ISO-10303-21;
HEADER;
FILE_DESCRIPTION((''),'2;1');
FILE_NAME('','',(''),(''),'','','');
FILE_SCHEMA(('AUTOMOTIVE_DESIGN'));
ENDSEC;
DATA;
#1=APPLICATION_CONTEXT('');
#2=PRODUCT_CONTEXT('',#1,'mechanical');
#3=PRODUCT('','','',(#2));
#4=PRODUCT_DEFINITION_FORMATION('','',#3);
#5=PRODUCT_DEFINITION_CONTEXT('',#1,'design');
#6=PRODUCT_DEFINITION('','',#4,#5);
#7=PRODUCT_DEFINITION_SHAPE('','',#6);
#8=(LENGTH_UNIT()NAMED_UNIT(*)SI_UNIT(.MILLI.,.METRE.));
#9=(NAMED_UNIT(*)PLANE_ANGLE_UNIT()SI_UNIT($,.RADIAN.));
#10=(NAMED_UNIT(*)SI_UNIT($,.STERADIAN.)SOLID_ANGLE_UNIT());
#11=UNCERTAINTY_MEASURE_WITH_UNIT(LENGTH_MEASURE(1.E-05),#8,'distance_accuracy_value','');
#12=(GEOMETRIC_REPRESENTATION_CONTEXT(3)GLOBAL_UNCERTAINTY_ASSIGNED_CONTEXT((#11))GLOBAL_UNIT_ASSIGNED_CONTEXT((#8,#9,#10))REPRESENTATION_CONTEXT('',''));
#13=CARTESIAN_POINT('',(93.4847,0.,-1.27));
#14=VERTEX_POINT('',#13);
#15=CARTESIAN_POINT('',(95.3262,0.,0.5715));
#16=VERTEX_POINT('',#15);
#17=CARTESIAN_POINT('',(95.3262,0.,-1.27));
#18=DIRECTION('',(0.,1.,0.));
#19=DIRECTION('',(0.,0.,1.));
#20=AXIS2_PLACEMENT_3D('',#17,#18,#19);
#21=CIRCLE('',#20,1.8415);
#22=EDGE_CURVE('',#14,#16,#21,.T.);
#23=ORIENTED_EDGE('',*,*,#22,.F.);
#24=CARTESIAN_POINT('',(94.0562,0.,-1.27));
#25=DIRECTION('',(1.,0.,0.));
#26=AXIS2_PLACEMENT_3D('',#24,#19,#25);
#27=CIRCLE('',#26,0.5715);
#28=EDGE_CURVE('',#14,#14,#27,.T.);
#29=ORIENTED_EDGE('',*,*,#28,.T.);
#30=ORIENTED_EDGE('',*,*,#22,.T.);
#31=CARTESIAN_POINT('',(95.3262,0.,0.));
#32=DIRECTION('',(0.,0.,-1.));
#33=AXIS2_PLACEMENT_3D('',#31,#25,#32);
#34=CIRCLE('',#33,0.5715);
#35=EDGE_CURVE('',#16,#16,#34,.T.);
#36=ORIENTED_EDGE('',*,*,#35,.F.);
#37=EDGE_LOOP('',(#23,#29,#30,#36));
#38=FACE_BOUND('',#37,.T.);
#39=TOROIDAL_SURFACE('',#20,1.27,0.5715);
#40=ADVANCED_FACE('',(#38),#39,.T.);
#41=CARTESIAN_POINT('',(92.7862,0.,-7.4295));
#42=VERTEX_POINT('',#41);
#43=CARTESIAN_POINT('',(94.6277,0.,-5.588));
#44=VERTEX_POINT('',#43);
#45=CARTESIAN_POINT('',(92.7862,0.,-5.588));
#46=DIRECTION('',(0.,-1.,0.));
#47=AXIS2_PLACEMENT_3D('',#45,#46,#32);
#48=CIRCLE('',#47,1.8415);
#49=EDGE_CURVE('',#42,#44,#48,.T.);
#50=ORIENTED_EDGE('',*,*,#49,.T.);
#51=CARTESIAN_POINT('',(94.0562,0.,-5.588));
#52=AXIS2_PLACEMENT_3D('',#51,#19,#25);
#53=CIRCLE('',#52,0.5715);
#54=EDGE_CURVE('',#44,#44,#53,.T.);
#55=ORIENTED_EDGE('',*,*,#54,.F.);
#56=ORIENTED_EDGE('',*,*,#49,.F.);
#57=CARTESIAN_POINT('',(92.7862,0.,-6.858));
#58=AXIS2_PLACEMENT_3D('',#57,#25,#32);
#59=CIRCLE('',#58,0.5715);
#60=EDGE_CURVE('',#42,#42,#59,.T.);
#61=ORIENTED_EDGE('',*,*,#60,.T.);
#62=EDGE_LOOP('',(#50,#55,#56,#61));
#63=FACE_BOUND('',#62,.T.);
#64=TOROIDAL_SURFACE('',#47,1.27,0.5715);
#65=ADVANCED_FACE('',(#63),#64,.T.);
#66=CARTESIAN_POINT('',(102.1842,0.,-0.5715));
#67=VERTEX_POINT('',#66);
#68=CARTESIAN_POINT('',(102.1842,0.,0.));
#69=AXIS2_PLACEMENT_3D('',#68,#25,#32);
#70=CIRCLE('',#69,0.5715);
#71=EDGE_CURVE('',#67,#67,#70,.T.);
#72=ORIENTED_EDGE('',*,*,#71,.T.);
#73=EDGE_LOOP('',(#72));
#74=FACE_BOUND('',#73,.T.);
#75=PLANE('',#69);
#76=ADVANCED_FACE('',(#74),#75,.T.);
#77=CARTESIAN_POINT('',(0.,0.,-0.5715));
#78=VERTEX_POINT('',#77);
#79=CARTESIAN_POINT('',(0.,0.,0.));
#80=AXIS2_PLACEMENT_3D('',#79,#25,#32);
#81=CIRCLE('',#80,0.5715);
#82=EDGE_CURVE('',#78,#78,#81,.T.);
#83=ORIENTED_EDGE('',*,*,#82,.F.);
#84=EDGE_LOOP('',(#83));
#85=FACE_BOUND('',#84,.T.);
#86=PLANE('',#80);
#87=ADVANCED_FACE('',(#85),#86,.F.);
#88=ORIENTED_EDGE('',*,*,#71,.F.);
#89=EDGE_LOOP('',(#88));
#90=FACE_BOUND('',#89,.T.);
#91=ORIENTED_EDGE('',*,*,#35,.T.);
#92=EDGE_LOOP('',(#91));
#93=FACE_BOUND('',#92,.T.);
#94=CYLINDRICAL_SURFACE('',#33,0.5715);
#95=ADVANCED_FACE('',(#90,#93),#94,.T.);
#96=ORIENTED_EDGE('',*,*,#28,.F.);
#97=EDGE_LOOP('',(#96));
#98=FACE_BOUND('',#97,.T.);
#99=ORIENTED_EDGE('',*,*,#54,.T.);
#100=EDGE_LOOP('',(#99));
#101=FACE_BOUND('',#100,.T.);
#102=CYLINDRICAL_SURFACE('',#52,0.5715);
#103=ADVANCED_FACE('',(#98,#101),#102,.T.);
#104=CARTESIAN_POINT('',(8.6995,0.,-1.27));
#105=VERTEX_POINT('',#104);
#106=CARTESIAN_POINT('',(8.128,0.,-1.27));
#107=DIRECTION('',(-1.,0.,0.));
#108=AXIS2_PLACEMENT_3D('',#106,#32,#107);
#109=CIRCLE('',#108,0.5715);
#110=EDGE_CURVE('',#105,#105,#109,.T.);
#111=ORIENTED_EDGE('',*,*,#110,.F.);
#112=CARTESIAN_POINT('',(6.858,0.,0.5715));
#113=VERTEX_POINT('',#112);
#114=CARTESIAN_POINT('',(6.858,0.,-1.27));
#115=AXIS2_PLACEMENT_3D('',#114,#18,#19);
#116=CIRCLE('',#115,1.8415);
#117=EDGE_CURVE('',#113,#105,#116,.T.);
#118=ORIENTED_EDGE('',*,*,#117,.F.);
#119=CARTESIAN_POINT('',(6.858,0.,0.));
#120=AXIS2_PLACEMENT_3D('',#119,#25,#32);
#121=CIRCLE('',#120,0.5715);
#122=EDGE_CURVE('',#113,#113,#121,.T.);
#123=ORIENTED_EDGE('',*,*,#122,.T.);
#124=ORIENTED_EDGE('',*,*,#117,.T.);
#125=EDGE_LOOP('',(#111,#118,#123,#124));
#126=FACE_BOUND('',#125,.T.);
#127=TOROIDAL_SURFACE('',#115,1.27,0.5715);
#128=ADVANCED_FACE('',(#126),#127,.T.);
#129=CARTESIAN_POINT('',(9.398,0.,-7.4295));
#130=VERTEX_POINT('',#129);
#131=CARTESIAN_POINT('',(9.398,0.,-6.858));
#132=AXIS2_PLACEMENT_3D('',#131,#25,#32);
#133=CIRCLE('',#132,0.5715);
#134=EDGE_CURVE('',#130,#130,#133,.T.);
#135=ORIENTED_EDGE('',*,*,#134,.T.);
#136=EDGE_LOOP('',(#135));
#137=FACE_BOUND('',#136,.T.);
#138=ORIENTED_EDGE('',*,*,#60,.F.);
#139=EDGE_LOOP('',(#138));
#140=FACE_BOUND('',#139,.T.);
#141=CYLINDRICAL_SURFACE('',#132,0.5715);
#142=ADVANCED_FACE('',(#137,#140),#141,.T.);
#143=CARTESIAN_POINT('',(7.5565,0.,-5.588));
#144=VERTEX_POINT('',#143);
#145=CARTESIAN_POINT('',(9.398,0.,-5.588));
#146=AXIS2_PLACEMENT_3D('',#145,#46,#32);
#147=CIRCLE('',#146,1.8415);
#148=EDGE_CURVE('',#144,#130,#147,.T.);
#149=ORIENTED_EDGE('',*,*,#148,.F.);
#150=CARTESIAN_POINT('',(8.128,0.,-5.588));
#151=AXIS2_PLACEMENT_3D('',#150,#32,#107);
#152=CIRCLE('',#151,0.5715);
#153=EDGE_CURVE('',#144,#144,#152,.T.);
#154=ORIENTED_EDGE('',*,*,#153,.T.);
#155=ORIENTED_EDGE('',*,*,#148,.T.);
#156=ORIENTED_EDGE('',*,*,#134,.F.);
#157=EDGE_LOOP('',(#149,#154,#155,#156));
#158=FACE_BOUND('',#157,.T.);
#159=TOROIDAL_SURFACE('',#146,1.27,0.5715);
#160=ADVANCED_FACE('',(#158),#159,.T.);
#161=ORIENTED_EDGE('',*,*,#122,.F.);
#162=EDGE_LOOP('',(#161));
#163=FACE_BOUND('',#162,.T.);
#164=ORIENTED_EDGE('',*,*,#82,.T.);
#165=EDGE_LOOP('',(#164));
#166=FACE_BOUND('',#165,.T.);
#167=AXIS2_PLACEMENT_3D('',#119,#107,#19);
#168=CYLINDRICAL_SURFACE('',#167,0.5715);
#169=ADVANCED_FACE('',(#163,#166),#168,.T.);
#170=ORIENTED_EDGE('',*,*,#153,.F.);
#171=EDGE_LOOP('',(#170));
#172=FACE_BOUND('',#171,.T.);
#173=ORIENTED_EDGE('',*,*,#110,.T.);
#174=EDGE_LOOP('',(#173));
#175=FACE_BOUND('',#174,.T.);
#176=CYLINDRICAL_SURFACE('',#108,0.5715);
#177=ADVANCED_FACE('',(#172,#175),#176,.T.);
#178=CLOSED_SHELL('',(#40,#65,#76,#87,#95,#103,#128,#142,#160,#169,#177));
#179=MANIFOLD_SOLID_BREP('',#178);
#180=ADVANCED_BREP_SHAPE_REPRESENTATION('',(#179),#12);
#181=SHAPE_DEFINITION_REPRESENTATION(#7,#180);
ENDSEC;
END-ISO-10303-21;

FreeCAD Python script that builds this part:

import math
import FreeCAD as App
import Part
import Sketcher
Q = App.Units.Quantity

doc = App.newDocument("Part")
params = doc.addObject("Spreadsheet::Sheet", "Params")
for row, (alias, value) in enumerate([
    ("sketch1_diameter", "0.045 in"),
    ("sketch2_radius", "0.05 in"),
    ("sketch2_width", "0.27 in"),
    ("sketch2_height", "0.17 in"),
    ("sketch2_width2", "3.283 in"),
], start=1):
    params.set(f"A{row}", alias)
    params.set(f"B{row}", "=" + value)
    params.setAlias(f"B{row}", alias)

body = doc.addObject("PartDesign::Body", "Body")

# Sketch on YZ plane
sketch1 = doc.addObject("Sketcher::SketchObject", "Sketch")
body.addObject(sketch1)
sketch1.AttachmentSupport = (doc.YZ_Plane, [""])
sketch1.MapMode = "FlatFace"
sketch1.addGeometry(Part.Circle(App.Vector(0, 0, 0), App.Vector(0, 0, 1), 0.5715), False)
sketch1.addConstraint(Sketcher.Constraint("Coincident", 0, 3, -1, 1))
sketch1.addConstraint(Sketcher.Constraint("Diameter", 0, Q("0.045 in")))
sketch1.setExpression("Constraints[1]", "Params.sketch1_diameter")

# Sketch on XZ plane
sketch2 = doc.addObject("Sketcher::SketchObject", "Sketch001")
body.addObject(sketch2)
sketch2.AttachmentSupport = (doc.XZ_Plane, [""])
sketch2.MapMode = "FlatFace"
sketch2.addGeometry(Part.LineSegment(App.Vector(0, 0, 0), App.Vector(6.858, 0, 0)), False)
sketch2.addGeometry(Part.ArcOfCircle(Part.Circle(App.Vector(6.858, -1.27, 0), App.Vector(0, 0, 1), 1.27), math.radians(0), math.radians(90)), False)
sketch2.addGeometry(Part.LineSegment(App.Vector(8.128, -1.27, 0), App.Vector(8.128, -5.588, 0)), False)
sketch2.addGeometry(Part.ArcOfCircle(Part.Circle(App.Vector(9.398, -5.588, 0), App.Vector(0, 0, 1), 1.27), math.radians(180), math.radians(270)), False)
sketch2.addGeometry(Part.LineSegment(App.Vector(9.398, -6.858, 0), App.Vector(92.7862, -6.858, 0)), False)
sketch2.addGeometry(Part.ArcOfCircle(Part.Circle(App.Vector(92.7862, -5.588, 0), App.Vector(0, 0, 1), 1.27), math.radians(-90), math.radians(0)), False)
sketch2.addGeometry(Part.LineSegment(App.Vector(94.0562, -5.588, 0), App.Vector(94.0562, -1.27, 0)), False)
sketch2.addGeometry(Part.ArcOfCircle(Part.Circle(App.Vector(95.3262, -1.27, 0), App.Vector(0, 0, 1), 1.27), math.radians(90), math.radians(180)), False)
sketch2.addGeometry(Part.LineSegment(App.Vector(95.3262, 0, 0), App.Vector(102.1842, 0, 0)), False)
sketch2.addConstraint(Sketcher.Constraint("Tangent", 0, 2, 1, 2))
sketch2.addConstraint(Sketcher.Constraint("Tangent", 1, 1, 2, 1))
sketch2.addConstraint(Sketcher.Constraint("Tangent", 2, 2, 3, 1))
sketch2.addConstraint(Sketcher.Constraint("Tangent", 3, 2, 4, 1))
sketch2.addConstraint(Sketcher.Constraint("Tangent", 4, 2, 5, 1))
sketch2.addConstraint(Sketcher.Constraint("Tangent", 5, 2, 6, 1))
sketch2.addConstraint(Sketcher.Constraint("Tangent", 6, 2, 7, 2))
sketch2.addConstraint(Sketcher.Constraint("Tangent", 7, 1, 8, 1))
sketch2.addConstraint(Sketcher.Constraint("Horizontal", 0))
sketch2.addConstraint(Sketcher.Constraint("Vertical", 2))
sketch2.addConstraint(Sketcher.Constraint("Horizontal", 4))
sketch2.addConstraint(Sketcher.Constraint("Vertical", 6))
sketch2.addConstraint(Sketcher.Constraint("Horizontal", 8))
sketch2.addConstraint(Sketcher.Constraint("Coincident", 0, 1, -1, 1))
sketch2.addConstraint(Sketcher.Constraint("Equal", 1, 3))
sketch2.addConstraint(Sketcher.Constraint("Equal", 3, 5))
sketch2.addConstraint(Sketcher.Constraint("Equal", 5, 7))
sketch2.addConstraint(Sketcher.Constraint("PointOnObject", 7, 1, -1))
sketch2.addConstraint(Sketcher.Constraint("Equal", 0, 8))
sketch2.addConstraint(Sketcher.Constraint("Radius", 1, Q("0.05 in")))
sketch2.addConstraint(Sketcher.Constraint("DistanceX", 0, 1, 0, 2, Q("0.27 in")))
sketch2.addConstraint(Sketcher.Constraint("DistanceY", 2, 2, 2, 1, Q("0.17 in")))
sketch2.addConstraint(Sketcher.Constraint("DistanceX", 4, 1, 4, 2, Q("3.283 in")))
sketch2.setExpression("Constraints[19]", "Params.sketch2_radius")
sketch2.setExpression("Constraints[20]", "Params.sketch2_width")
sketch2.setExpression("Constraints[21]", "Params.sketch2_height")
sketch2.setExpression("Constraints[22]", "Params.sketch2_width2")
doc.recompute()

additivepipe = doc.addObject("PartDesign::AdditivePipe", "AdditivePipe")
body.addObject(additivepipe)
additivepipe.Profile = sketch1
additivepipe.Spine = (sketch2, ["Edge1", "Edge2", "Edge3", "Edge4", "Edge5", "Edge6", "Edge7", "Edge8", "Edge9"])

doc.recompute()
